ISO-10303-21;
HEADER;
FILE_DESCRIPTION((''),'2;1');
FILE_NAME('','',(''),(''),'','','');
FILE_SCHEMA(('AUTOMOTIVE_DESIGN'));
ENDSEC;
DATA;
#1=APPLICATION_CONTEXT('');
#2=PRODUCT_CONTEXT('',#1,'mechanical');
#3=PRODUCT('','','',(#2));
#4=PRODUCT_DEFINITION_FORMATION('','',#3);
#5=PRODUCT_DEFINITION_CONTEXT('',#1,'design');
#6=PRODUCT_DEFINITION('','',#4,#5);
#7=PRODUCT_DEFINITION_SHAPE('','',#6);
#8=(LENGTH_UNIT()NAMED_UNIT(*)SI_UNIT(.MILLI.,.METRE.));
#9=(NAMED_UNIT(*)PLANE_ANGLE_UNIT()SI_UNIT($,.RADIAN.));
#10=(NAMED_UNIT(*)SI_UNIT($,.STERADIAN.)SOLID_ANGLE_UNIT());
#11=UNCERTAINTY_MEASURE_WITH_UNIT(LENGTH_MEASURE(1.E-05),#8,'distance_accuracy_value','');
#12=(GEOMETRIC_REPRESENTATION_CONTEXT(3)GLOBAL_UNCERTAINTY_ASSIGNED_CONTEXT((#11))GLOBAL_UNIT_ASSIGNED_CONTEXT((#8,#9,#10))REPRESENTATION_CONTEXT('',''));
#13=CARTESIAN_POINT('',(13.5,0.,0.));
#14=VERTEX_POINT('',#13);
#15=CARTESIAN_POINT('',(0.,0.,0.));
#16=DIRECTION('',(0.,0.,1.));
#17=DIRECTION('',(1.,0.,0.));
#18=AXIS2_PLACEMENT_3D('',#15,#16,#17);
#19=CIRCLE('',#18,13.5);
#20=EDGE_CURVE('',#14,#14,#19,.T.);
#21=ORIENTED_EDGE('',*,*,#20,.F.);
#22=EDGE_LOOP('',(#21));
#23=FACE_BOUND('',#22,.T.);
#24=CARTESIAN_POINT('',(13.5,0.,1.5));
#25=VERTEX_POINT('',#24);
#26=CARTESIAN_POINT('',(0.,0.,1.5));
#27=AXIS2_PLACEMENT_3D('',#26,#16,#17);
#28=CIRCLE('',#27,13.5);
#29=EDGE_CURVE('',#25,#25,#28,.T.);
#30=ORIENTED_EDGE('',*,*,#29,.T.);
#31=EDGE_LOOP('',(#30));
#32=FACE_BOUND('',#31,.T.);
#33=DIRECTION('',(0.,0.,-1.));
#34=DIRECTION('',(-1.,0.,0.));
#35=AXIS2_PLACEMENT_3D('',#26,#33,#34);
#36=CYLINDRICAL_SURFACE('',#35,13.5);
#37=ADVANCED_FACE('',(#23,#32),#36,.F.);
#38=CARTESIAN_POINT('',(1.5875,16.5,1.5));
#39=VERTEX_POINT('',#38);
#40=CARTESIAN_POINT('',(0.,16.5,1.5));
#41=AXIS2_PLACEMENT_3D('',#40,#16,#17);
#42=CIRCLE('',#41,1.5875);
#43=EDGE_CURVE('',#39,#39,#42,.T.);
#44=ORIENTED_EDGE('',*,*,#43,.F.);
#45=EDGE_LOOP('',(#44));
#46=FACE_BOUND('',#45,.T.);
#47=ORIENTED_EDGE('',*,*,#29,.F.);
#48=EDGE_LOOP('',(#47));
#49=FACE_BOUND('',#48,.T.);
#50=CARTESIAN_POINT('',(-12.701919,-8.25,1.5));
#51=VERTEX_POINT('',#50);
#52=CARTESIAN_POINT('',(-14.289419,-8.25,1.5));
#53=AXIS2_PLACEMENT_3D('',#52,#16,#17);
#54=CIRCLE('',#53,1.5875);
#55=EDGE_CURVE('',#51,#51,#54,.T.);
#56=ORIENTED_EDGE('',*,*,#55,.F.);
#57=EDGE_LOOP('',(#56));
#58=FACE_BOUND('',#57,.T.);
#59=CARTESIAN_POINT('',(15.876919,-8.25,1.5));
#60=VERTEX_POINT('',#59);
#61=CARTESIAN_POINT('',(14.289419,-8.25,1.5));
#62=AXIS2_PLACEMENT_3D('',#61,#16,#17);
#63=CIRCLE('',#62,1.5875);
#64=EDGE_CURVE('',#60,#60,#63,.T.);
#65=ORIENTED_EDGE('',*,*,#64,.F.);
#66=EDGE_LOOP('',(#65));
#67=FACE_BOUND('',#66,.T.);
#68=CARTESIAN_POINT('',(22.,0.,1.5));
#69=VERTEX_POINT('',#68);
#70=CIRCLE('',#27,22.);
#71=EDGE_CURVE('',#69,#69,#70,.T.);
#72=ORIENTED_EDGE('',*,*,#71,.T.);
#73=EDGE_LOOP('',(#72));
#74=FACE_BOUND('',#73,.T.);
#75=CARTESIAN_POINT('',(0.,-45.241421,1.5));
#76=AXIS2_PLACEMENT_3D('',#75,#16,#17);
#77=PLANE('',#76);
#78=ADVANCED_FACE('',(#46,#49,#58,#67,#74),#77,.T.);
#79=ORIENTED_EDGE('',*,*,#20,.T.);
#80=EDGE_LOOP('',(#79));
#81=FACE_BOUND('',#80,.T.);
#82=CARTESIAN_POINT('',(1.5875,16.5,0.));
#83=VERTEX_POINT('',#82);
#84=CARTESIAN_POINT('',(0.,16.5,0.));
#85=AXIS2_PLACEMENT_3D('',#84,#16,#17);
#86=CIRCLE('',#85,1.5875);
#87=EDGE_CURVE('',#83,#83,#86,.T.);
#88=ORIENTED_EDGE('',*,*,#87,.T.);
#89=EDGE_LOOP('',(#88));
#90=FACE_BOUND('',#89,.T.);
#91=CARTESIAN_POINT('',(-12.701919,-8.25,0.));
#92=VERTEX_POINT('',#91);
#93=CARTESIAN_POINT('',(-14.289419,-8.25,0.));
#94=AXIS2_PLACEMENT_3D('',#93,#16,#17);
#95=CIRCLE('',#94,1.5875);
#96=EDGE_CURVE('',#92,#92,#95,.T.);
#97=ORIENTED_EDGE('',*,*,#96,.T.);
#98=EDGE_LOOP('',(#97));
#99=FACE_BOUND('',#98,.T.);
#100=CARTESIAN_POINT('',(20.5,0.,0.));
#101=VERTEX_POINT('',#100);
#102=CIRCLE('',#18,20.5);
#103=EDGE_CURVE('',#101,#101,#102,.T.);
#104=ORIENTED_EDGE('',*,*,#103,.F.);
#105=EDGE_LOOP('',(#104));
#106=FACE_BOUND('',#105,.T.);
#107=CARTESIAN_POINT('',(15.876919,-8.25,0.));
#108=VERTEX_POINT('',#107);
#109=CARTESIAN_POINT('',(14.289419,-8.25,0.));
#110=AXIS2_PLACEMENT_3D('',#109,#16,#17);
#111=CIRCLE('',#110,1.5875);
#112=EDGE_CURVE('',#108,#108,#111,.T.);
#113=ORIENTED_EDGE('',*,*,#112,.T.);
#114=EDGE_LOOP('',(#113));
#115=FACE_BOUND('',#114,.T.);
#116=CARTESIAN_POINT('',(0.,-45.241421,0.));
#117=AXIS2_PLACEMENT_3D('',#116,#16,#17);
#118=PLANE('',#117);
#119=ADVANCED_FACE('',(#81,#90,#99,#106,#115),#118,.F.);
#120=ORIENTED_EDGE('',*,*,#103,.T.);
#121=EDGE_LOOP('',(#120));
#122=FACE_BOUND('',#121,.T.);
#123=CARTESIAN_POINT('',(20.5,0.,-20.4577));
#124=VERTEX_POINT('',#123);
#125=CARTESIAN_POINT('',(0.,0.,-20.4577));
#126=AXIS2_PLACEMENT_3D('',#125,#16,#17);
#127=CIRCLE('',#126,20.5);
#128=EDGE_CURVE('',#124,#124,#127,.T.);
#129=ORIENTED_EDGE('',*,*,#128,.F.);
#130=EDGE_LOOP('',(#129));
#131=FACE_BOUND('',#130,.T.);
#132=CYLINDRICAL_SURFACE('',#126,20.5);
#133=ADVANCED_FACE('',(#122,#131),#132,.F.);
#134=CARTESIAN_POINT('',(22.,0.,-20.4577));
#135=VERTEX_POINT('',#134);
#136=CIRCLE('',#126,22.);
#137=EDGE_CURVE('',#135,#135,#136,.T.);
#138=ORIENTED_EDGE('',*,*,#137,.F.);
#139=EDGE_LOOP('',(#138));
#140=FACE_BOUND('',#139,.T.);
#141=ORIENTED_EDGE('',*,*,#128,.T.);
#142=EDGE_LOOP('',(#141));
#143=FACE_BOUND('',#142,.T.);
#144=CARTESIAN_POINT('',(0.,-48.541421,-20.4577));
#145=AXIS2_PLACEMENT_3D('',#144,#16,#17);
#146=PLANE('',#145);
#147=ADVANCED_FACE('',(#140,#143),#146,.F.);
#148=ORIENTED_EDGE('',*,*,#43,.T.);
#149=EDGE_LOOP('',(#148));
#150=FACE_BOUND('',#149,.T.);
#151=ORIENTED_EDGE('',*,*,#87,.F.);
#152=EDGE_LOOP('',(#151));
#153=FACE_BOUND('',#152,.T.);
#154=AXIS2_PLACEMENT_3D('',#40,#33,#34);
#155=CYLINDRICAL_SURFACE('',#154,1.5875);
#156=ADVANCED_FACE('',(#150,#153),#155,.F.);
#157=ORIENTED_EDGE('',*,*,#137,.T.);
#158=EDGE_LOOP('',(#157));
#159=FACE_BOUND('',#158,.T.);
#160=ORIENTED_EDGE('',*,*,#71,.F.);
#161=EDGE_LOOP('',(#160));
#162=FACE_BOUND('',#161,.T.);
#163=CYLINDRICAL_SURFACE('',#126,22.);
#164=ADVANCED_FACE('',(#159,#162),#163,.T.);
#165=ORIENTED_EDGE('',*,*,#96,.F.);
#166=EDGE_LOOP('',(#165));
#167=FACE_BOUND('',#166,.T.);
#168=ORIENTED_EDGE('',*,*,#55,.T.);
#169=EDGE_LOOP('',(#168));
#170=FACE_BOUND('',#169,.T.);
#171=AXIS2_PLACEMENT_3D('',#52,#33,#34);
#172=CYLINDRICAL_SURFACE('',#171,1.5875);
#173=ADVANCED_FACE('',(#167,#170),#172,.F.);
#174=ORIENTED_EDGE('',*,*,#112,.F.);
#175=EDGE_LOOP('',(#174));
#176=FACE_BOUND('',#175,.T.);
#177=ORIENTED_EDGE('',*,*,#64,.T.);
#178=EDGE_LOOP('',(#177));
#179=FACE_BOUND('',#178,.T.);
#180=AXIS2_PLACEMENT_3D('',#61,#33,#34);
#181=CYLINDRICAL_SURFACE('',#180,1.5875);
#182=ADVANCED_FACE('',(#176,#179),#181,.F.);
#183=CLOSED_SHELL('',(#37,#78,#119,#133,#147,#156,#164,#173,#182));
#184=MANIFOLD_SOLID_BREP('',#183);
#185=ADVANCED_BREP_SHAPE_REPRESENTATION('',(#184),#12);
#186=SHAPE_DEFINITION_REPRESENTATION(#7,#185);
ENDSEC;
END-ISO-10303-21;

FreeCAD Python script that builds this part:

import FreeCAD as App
import Part
import Sketcher

V = App.Vector
Q = App.Units.Quantity

doc = App.newDocument("Part")
body = doc.addObject("PartDesign::Body", "Body")

# Sketch on XY plane
sketch1 = body.newObject("Sketcher::SketchObject", "Sketch")
sketch1.AttachmentSupport = (doc.getObject("XY_Plane"), [""])
sketch1.MapMode = "FlatFace"
sketch1.addGeometry(Part.Circle(V(0, 0, 0), V(0, 0, 1), 20.5), False)
sketch1.addGeometry(Part.Circle(V(-14.3, -8.2, 0), V(0, 0, 1), 1.6), False)
sketch1.addGeometry(Part.Circle(V(14.3, -8.2, 0), V(0, 0, 1), 1.6), False)
sketch1.addGeometry(Part.Circle(V(0, 0, 0), V(0, 0, 1), 13.5), False)
sketch1.addGeometry(Part.Circle(V(0, 16.5, 0), V(0, 0, 1), 1.6), False)
sketch1.addConstraint(Sketcher.Constraint("Coincident", 0, 3, -1, 1))
sketch1.addConstraint(Sketcher.Constraint("Coincident", 3, 3, -1, 1))
sketch1.addConstraint(Sketcher.Constraint("Equal", 1, 2))
sketch1.addConstraint(Sketcher.Constraint("Equal", 2, 4))
sketch1.addConstraint(Sketcher.Constraint("Symmetric", 1, 3, 2, 3, -2))
sketch1.addConstraint(Sketcher.Constraint("PointOnObject", 4, 3, -2))
sketch1.addConstraint(Sketcher.Constraint("Diameter", 0, Q("41 mm")))
sketch1.addConstraint(Sketcher.Constraint("Diameter", 3, Q("27 mm")))
sketch1.addConstraint(Sketcher.Constraint("Diameter", 1, Q("3.175 mm")))
sketch1.addConstraint(Sketcher.Constraint("DistanceY", -1, 1, 4, 3, Q("16.5 mm")))
sketch1.addConstraint(Sketcher.Constraint("DistanceY", 1, 3, -1, 1, Q("8.25 mm")))
sketch1.addConstraint(Sketcher.Constraint("DistanceX", 1, 3, -1, 1, Q("14.289419 mm")))
pad1 = body.newObject("PartDesign::Pad", "Pad")
pad1.Profile = sketch1
pad1.Length = 1.5

# Sketch on XY plane
sketch2 = body.newObject("Sketcher::SketchObject", "Sketch001")
sketch2.AttachmentSupport = (doc.getObject("XY_Plane"), [""])
sketch2.MapMode = "FlatFace"
sketch2.AttachmentOffset = App.Placement(V(0, 0, -20.4577), App.Rotation())
sketch2.addGeometry(Part.Circle(V(0, 0, 0), V(0, 0, 1), 22), False)
sketch2.addGeometry(Part.Circle(V(0, 0, 0), V(0, 0, 1), 20), False)
sketch2.addConstraint(Sketcher.Constraint("Coincident", 0, 3, -1, 1))
sketch2.addConstraint(Sketcher.Constraint("Coincident", 1, 3, -1, 1))
sketch2.addConstraint(Sketcher.Constraint("Diameter", 0, Q("44 mm")))
sketch2.addConstraint(Sketcher.Constraint("Diameter", 1, Q("41 mm")))
pad2 = body.newObject("PartDesign::Pad", "Pad001")
pad2.Profile = sketch2
pad2.Length = 21.9577

doc.recompute()
